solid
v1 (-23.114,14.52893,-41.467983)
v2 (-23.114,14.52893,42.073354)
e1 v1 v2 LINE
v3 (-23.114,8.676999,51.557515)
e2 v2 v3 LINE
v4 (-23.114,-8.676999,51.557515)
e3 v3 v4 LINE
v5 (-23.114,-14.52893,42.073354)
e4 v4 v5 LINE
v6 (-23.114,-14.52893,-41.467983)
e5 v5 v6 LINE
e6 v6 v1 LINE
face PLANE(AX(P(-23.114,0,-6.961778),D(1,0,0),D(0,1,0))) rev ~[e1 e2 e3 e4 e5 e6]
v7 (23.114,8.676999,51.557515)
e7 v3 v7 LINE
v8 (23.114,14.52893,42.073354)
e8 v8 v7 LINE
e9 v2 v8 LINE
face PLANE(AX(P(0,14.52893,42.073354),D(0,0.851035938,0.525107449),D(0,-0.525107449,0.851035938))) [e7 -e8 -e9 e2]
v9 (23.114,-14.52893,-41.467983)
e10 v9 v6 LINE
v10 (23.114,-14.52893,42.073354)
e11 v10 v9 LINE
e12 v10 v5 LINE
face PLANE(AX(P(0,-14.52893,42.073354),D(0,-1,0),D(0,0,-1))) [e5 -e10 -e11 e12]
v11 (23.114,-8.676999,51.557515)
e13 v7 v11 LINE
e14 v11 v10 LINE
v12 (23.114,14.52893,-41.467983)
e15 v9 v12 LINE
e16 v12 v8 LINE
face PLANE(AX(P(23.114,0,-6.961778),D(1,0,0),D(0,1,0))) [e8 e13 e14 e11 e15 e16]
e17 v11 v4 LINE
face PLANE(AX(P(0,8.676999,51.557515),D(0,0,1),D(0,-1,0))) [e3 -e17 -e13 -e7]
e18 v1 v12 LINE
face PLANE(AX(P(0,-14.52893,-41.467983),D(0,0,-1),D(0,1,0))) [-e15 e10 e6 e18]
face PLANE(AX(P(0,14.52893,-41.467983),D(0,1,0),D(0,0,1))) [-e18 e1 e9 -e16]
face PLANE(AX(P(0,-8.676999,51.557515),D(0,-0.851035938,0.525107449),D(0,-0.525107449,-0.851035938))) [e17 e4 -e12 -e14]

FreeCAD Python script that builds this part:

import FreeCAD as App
import Part
import Sketcher
from FreeCAD import Vector
Q = App.Units.Quantity

doc = App.newDocument("Part")
body = doc.addObject("PartDesign::Body", "Body")

sketch1 = doc.addObject("Sketcher::SketchObject", "Sketch")
body.addObject(sketch1)
sketch1.AttachmentSupport = (doc.YZ_Plane, [""])
sketch1.MapMode = "FlatFace"
sketch1.addGeometry(Part.LineSegment(Vector(-15, -41, 0), Vector(15, -41, 0)), False)
sketch1.addGeometry(Part.LineSegment(Vector(15, -41, 0), Vector(15, 42, 0)), False)
sketch1.addGeometry(Part.LineSegment(Vector(15, 42, 0), Vector(9, 52, 0)), False)
sketch1.addGeometry(Part.LineSegment(Vector(9, 52, 0), Vector(-9, 52, 0)), False)
sketch1.addGeometry(Part.LineSegment(Vector(-9, 52, 0), Vector(-15, 42, 0)), False)
sketch1.addGeometry(Part.LineSegment(Vector(-15, 42, 0), Vector(-15, -41, 0)), False)
sketch1.addConstraint(Sketcher.Constraint("Coincident", 0, 2, 1, 1))
sketch1.addConstraint(Sketcher.Constraint("Coincident", 1, 2, 2, 1))
sketch1.addConstraint(Sketcher.Constraint("Coincident", 2, 2, 3, 1))
sketch1.addConstraint(Sketcher.Constraint("Coincident", 3, 2, 4, 1))
sketch1.addConstraint(Sketcher.Constraint("Coincident", 4, 2, 5, 1))
sketch1.addConstraint(Sketcher.Constraint("Coincident", 5, 2, 0, 1))
sketch1.addConstraint(Sketcher.Constraint("Horizontal", 0))
sketch1.addConstraint(Sketcher.Constraint("Vertical", 1))
sketch1.addConstraint(Sketcher.Constraint("Horizontal", 3))
sketch1.addConstraint(Sketcher.Constraint("Vertical", 5))
sketch1.addConstraint(Sketcher.Constraint("Symmetric", 1, 2, 4, 2, -2))
sketch1.addConstraint(Sketcher.Constraint("Equal", 2, 4))
sketch1.addConstraint(Sketcher.Constraint("DistanceX", 3, 2, 3, 1, 17.353998))
sketch1.addConstraint(Sketcher.Constraint("DistanceX", 0, 1, 0, 2, 29.05786))
sketch1.addConstraint(Sketcher.Constraint("DistanceY", 0, 2, 2, 2, 93.025498))
sketch1.addConstraint(Sketcher.Constraint("DistanceY", 1, 1, 1, 2, 83.541337))
sketch1.addConstraint(Sketcher.Constraint("DistanceY", 0, 2, -1, 1, 41.467983))
pad1 = doc.addObject("PartDesign::Pad", "Pad")
body.addObject(pad1)
pad1.Profile = sketch1
pad1.Length = Q("1.82 in")
pad1.Midplane = True

doc.recompute()
